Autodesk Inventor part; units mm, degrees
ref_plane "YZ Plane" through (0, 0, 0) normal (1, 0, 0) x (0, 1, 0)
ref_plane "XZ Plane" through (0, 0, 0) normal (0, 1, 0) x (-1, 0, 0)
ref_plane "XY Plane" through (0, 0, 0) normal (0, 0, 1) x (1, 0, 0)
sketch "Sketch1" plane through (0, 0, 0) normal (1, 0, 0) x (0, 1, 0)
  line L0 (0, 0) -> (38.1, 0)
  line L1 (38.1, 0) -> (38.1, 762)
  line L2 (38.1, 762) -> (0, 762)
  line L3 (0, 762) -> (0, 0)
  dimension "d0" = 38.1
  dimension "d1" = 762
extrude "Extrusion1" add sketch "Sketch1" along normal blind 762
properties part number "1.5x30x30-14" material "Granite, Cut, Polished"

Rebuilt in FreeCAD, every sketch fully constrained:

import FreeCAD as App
import Part
import Sketcher

V = App.Vector
Q = App.Units.Quantity

doc = App.newDocument("Part")
params = doc.addObject("Spreadsheet::Sheet", "Params")
for row, (alias, value) in enumerate([
    ("sketch1_height", "30 in"),
    ("sketch1_width", "1.5 in"),
    ("pad1_length", "30 in"),
], start=1):
    params.set(f"A{row}", alias)
    params.set(f"B{row}", "=" + value)
    params.setAlias(f"B{row}", alias)

body = doc.addObject("PartDesign::Body", "Body")

# Sketch on YZ plane
sketch1 = body.newObject("Sketcher::SketchObject", "Sketch")
sketch1.AttachmentSupport = (doc.getObject("YZ_Plane"), [""])
sketch1.MapMode = "FlatFace"
sketch1.addGeometry(Part.LineSegment(V(0, 762, 0), V(0, 0, 0)), False)
sketch1.addGeometry(Part.LineSegment(V(0, 0, 0), V(38, 0, 0)), False)
sketch1.addGeometry(Part.LineSegment(V(38, 0, 0), V(38, 762, 0)), False)
sketch1.addGeometry(Part.LineSegment(V(38, 762, 0), V(0, 762, 0)), False)
sketch1.addConstraint(Sketcher.Constraint("Coincident", 0, 2, 1, 1))
sketch1.addConstraint(Sketcher.Constraint("Coincident", 1, 2, 2, 1))
sketch1.addConstraint(Sketcher.Constraint("Coincident", 2, 2, 3, 1))
sketch1.addConstraint(Sketcher.Constraint("Coincident", 3, 2, 0, 1))
sketch1.addConstraint(Sketcher.Constraint("Vertical", 0))
sketch1.addConstraint(Sketcher.Constraint("Horizontal", 1))
sketch1.addConstraint(Sketcher.Constraint("Vertical", 2))
sketch1.addConstraint(Sketcher.Constraint("Horizontal", 3))
sketch1.addConstraint(Sketcher.Constraint("Coincident", 0, 2, -1, 1))
sketch1.addConstraint(Sketcher.Constraint("DistanceY", 0, 2, 0, 1, Q("30 in")))
sketch1.addConstraint(Sketcher.Constraint("DistanceX", 1, 1, 1, 2, Q("1.5 in")))
sketch1.setExpression("Constraints[9]", "Params.sketch1_height")
sketch1.setExpression("Constraints[10]", "Params.sketch1_width")
pad1 = body.newObject("PartDesign::Pad", "Pad")
pad1.Profile = sketch1
pad1.setExpression("Length", "Params.pad1_length")

doc.recompute()
